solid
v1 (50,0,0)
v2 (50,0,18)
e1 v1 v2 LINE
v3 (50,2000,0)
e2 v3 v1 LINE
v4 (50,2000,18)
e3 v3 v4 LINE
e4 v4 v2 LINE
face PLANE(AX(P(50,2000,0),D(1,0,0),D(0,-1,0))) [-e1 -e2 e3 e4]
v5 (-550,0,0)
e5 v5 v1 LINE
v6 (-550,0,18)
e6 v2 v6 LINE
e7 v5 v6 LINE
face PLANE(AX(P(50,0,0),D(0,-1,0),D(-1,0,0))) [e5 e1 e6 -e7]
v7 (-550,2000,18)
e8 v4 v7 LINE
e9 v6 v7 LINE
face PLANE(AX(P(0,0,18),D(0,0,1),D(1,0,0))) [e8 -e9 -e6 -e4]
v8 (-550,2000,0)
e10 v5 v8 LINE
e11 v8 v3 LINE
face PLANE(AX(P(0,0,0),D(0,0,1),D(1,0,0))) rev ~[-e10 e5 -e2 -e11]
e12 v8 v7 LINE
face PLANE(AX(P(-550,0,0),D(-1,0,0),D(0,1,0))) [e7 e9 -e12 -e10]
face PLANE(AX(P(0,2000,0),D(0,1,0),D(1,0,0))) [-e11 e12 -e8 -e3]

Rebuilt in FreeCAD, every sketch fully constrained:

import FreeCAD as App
import Part
import Sketcher

V = App.Vector
Q = App.Units.Quantity

doc = App.newDocument("Part")
body = doc.addObject("PartDesign::Body", "Body")

# Sketch on XY plane
sketch1 = body.newObject("Sketcher::SketchObject", "Sketch")
sketch1.AttachmentSupport = (doc.getObject("XY_Plane"), [""])
sketch1.MapMode = "FlatFace"
sketch1.addGeometry([
    Part.LineSegment(V(50, 0, 0), V(50, 2000, 0)),
    Part.LineSegment(V(50, 2000, 0), V(-550, 2000, 0)),
    Part.LineSegment(V(-550, 2000, 0), V(-550, 0, 0)),
    Part.LineSegment(V(-550, 0, 0), V(50, 0, 0)),
], False)
sketch1.addConstraint([
    Sketcher.Constraint("Coincident", 0, 2, 1, 1),
    Sketcher.Constraint("Coincident", 1, 2, 2, 1),
    Sketcher.Constraint("Coincident", 2, 2, 3, 1),
    Sketcher.Constraint("Coincident", 3, 2, 0, 1),
    Sketcher.Constraint("Vertical", 0),
    Sketcher.Constraint("Horizontal", 1),
    Sketcher.Constraint("Vertical", 2),
    Sketcher.Constraint("Horizontal", 3),
    Sketcher.Constraint("PointOnObject", 2, 2, -1),
    Sketcher.Constraint("DistanceX", 1, 2, 1, 1, Q("600 mm")),
    Sketcher.Constraint("DistanceY", 0, 1, 0, 2, Q("2000 mm")),
    Sketcher.Constraint("DistanceX", -1, 1, 0, 2, Q("50 mm")),
])
pad1 = body.newObject("PartDesign::Pad", "Pad")
pad1.Profile = sketch1
pad1.Length = 18

doc.recompute()
